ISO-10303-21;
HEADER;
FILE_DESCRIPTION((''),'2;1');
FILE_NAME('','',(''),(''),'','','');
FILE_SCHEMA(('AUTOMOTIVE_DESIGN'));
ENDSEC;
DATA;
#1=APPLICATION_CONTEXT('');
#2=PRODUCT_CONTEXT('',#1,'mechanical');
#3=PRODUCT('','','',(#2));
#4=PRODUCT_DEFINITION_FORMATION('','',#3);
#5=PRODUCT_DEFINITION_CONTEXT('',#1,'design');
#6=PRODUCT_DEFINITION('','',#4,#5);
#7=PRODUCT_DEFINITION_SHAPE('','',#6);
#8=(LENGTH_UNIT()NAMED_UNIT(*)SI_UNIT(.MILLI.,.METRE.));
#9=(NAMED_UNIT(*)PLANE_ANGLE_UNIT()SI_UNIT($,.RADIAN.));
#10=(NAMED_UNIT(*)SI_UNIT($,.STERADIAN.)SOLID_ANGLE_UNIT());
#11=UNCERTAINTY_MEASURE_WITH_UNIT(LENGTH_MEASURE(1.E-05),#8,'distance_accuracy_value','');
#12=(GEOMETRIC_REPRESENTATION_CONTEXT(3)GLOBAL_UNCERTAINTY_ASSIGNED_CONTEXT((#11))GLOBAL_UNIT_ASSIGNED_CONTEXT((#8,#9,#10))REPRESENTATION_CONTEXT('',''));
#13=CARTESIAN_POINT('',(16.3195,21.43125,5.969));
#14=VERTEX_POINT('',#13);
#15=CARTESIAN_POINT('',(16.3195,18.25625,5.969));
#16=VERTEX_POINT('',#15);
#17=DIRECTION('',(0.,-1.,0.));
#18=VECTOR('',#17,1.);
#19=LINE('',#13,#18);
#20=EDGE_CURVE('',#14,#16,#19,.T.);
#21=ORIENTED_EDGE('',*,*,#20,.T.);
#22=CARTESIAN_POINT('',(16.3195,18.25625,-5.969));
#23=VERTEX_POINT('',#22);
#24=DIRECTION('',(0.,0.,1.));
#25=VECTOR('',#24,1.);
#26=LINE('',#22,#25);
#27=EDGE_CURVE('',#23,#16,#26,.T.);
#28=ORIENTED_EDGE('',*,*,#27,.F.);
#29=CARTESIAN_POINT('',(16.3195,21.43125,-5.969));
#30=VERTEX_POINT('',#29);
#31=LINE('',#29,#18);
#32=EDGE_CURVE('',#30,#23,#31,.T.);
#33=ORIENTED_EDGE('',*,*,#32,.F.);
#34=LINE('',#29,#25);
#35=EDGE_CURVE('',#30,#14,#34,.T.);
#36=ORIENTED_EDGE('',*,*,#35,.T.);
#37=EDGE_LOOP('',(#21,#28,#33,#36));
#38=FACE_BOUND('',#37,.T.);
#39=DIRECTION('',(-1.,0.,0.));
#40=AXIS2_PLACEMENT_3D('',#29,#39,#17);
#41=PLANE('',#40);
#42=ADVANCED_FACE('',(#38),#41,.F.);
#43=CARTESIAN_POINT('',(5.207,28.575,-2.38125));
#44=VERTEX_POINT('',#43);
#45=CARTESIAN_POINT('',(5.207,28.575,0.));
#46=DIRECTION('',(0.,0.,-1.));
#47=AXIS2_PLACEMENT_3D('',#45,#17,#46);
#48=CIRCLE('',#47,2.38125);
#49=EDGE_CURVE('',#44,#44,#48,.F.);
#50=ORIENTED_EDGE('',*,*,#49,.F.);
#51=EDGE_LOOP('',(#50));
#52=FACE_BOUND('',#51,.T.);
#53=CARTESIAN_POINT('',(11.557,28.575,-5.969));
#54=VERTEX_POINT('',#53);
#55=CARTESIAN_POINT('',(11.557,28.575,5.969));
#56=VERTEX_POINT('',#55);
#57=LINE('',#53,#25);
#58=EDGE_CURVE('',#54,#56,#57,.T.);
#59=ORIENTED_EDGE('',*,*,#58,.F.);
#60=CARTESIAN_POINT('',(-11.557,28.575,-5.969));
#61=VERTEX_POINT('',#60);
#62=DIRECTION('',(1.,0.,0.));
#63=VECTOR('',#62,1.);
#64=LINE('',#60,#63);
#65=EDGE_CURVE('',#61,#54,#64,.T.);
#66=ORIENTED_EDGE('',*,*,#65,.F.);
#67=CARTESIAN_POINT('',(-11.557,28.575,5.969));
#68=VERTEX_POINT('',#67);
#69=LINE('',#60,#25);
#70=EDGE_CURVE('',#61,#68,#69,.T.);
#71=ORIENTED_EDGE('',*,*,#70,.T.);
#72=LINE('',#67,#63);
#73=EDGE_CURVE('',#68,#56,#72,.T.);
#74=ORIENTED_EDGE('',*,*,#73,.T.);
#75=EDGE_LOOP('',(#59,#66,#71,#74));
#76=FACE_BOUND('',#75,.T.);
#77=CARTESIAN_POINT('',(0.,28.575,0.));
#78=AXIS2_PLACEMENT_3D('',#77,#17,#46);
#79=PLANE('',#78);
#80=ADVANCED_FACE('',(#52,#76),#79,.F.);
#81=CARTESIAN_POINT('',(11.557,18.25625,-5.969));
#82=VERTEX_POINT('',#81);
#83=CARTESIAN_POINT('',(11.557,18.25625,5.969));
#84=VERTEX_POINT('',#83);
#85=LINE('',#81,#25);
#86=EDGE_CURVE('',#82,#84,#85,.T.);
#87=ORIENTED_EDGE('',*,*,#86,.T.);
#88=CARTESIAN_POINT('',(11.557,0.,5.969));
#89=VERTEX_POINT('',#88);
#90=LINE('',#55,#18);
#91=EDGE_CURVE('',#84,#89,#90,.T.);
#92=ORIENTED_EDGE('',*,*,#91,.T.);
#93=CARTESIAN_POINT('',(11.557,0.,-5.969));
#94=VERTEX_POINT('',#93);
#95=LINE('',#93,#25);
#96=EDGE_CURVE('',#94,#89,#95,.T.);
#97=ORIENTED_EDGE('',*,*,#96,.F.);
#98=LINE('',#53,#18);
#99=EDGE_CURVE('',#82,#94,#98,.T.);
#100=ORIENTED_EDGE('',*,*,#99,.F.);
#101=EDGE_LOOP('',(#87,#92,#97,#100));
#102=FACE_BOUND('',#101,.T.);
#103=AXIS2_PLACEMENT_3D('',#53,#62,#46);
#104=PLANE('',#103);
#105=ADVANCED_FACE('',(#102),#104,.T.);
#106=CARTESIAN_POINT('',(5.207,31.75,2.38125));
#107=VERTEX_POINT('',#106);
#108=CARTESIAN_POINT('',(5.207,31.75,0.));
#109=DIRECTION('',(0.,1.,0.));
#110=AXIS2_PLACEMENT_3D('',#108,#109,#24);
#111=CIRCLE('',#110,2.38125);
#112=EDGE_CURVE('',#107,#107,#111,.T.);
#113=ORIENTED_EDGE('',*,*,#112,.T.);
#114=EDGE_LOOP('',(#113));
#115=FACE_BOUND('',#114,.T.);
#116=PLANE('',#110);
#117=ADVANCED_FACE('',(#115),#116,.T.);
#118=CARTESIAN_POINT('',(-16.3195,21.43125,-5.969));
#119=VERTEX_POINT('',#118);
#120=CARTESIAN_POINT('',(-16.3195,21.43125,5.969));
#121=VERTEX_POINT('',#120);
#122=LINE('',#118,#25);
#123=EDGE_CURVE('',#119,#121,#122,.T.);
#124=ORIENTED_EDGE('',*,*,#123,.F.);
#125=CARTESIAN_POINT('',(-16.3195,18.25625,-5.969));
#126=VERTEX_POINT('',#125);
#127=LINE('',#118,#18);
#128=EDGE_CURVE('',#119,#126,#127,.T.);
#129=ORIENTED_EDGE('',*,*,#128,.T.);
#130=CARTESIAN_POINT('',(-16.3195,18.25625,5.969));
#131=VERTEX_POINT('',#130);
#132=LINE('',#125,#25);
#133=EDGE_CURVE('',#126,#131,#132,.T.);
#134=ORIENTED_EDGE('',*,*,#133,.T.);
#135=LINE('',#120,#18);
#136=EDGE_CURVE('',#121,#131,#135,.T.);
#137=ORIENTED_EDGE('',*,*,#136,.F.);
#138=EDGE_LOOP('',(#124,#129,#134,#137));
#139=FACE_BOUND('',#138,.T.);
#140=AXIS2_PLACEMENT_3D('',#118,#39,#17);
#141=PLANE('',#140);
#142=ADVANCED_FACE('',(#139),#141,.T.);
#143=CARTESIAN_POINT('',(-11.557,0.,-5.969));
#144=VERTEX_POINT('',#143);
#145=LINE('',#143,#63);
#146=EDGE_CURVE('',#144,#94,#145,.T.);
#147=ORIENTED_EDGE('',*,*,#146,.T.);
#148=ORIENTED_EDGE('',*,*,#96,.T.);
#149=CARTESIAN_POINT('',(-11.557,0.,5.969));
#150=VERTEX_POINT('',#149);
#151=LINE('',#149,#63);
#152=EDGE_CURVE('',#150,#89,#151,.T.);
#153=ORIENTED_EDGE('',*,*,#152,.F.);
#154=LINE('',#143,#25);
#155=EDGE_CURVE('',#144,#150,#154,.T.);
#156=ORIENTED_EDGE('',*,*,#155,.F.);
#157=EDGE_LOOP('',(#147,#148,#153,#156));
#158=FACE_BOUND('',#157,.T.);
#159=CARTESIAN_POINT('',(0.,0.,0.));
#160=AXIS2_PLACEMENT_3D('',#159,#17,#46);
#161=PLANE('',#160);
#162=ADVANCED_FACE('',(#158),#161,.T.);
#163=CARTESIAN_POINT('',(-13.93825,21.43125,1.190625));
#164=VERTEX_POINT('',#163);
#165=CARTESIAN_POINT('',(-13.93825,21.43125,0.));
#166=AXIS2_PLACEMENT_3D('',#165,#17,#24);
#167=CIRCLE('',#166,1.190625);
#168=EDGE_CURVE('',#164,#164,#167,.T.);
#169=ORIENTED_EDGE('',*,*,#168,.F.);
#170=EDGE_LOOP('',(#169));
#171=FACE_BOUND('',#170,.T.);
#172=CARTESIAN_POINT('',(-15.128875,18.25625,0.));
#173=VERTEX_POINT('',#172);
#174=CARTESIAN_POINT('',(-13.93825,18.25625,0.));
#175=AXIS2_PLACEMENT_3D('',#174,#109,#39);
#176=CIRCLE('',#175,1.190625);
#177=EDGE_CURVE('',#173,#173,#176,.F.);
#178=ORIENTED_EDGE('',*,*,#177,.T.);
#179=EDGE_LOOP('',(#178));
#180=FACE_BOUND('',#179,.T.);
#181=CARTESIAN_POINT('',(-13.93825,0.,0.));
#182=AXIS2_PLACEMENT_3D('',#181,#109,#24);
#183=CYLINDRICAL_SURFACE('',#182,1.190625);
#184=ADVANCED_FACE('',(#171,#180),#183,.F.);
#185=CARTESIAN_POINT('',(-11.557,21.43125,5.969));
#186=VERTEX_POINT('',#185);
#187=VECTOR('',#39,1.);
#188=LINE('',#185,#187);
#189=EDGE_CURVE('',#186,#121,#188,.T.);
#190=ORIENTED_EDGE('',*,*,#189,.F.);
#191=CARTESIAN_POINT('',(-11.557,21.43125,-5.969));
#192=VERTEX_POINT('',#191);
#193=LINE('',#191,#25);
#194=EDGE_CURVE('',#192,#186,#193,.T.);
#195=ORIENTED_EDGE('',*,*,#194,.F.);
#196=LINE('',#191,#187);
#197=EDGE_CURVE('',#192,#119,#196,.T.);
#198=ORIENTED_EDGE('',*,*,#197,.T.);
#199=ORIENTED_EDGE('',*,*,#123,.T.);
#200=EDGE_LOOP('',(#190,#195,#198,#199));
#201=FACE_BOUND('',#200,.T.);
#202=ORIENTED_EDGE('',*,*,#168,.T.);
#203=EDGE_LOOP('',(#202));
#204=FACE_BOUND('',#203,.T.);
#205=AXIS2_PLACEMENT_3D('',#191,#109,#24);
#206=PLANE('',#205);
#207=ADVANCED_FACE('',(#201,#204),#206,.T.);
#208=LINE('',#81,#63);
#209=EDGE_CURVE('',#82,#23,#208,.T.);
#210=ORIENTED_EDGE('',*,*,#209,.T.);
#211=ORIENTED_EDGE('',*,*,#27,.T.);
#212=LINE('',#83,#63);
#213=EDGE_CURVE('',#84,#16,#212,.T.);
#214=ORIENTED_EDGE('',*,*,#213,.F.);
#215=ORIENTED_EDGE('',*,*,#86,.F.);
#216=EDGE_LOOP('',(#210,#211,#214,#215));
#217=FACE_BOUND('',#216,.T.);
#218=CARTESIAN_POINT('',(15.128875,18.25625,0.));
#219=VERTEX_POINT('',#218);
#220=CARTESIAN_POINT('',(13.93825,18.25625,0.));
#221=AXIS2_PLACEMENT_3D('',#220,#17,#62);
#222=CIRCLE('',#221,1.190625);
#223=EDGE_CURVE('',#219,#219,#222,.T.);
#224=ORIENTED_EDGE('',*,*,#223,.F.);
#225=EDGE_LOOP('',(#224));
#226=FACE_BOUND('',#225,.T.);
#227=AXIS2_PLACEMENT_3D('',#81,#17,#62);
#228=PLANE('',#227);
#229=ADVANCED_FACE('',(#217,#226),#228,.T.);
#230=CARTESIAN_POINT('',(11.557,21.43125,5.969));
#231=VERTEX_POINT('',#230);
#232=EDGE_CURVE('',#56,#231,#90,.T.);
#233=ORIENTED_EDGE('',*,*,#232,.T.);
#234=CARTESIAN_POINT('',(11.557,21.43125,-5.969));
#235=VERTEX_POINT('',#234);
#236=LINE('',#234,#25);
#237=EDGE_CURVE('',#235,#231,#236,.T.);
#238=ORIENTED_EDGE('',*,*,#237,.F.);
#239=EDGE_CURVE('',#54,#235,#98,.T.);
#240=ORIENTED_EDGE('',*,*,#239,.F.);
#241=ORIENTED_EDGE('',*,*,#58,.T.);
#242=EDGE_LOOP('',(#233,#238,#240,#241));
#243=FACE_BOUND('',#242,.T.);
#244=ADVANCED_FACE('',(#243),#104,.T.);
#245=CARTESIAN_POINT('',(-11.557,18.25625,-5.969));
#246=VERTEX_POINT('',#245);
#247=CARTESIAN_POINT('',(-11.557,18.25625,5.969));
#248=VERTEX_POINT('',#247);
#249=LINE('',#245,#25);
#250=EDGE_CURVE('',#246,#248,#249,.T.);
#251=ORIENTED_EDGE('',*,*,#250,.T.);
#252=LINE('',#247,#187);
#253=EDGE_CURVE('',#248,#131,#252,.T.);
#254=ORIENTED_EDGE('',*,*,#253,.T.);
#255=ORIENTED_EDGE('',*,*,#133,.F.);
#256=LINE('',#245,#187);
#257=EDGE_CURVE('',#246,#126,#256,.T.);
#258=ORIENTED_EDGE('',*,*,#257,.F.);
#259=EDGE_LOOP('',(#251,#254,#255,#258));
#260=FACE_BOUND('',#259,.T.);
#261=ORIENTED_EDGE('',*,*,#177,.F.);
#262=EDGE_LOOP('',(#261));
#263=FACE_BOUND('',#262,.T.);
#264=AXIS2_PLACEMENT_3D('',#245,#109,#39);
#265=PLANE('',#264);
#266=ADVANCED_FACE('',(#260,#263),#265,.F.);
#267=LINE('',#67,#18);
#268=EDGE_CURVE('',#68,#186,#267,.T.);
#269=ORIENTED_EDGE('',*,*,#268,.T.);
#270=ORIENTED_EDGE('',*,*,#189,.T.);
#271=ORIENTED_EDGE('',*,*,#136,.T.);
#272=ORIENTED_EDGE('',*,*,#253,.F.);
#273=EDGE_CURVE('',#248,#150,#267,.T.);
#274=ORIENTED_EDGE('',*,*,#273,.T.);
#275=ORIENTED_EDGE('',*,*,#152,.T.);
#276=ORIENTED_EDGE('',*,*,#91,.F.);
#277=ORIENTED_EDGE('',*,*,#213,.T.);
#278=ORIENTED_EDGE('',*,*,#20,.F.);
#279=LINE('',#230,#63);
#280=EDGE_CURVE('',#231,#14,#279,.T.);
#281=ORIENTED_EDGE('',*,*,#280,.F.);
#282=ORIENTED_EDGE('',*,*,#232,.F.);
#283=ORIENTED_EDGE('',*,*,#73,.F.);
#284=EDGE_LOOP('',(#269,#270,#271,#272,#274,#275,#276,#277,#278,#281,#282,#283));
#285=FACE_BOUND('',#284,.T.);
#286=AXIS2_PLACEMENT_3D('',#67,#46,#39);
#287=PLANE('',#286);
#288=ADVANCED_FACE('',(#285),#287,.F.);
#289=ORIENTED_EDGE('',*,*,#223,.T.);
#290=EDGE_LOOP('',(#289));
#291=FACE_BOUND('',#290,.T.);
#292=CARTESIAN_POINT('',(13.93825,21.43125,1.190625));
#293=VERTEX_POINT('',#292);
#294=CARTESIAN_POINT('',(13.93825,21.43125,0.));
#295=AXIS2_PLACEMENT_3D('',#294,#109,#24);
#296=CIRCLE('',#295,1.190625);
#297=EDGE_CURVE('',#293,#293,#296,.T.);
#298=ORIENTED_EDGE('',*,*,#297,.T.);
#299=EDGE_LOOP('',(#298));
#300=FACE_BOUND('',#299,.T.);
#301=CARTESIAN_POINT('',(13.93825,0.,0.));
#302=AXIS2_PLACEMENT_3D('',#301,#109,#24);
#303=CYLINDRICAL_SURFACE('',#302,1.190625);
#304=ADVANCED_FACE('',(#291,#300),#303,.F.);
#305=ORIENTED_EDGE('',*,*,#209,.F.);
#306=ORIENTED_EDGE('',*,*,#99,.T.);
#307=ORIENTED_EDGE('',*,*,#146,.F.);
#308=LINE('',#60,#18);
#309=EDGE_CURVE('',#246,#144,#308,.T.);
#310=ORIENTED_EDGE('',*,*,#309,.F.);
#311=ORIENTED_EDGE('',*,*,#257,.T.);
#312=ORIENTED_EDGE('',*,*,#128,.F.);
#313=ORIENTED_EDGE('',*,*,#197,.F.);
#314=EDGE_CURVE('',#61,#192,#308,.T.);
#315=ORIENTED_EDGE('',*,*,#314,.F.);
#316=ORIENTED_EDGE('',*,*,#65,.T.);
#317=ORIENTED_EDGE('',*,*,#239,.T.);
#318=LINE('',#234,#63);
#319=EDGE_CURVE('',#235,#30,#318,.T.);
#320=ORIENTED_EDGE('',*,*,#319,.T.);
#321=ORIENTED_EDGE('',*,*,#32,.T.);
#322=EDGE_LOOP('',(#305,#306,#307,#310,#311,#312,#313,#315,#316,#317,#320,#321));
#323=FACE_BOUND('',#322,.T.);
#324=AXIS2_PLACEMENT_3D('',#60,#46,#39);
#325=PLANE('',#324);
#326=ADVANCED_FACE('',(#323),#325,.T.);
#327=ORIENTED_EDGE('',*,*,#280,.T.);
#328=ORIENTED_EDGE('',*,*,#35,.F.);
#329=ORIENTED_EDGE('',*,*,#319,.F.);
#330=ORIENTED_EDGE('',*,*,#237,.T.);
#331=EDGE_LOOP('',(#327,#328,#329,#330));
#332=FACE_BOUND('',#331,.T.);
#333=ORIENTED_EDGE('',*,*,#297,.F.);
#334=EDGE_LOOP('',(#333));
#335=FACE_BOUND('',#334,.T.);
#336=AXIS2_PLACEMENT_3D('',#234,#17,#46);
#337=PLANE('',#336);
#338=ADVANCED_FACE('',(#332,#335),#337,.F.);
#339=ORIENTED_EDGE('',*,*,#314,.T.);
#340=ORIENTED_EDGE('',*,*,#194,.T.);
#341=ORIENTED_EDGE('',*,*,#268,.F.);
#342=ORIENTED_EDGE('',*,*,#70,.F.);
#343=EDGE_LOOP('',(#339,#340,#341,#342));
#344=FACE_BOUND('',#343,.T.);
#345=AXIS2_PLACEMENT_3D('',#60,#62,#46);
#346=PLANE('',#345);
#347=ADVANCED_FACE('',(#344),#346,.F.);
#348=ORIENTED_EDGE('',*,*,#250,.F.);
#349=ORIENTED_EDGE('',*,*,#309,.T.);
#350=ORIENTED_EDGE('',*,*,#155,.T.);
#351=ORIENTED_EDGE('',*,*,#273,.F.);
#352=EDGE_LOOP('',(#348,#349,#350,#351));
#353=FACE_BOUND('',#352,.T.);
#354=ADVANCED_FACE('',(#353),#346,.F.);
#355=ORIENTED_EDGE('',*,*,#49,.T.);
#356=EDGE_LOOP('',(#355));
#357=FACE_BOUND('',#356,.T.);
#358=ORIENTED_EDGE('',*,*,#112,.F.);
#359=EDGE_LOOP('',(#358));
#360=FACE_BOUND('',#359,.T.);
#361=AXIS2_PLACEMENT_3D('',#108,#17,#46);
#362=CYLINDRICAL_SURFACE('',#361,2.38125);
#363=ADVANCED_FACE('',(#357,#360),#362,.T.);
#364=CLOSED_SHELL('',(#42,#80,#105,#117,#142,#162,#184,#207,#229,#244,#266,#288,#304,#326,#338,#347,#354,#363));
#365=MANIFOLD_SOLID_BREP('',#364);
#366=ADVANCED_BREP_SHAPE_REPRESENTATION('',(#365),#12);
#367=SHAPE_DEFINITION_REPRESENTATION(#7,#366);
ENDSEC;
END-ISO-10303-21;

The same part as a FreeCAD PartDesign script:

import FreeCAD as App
import Part
import Sketcher

V = App.Vector
Q = App.Units.Quantity

doc = App.newDocument("Part")
params = doc.addObject("Spreadsheet::Sheet", "Params")
for row, (alias, value) in enumerate([
    ("sketch1_width", "0.91 in"),
    ("sketch1_height", "0.47 in"),
    ("pad1_length", "1.125 in"),
    ("sketch2_width", "0.1875 in"),
    ("sketch2_height", "0.125 in"),
    ("pad2_length", "0.47 in"),
    ("sketch3_diameter", "0.1875 in"),
    ("pad3_length", "0.125 in"),
    ("sketch4_diameter", "0.09375 in"),
], start=1):
    params.set(f"A{row}", alias)
    params.set(f"B{row}", "=" + value)
    params.setAlias(f"B{row}", alias)

body = doc.addObject("PartDesign::Body", "Body")

sketch1 = doc.addObject("Sketcher::SketchObject", "Sketch")
body.addObject(sketch1)
sketch1.AttachmentSupport = (doc.XZ_Plane, [""])
sketch1.MapMode = "FlatFace"
sketch1.addGeometry(Part.LineSegment(V(-12, -6, 0), V(-12, 6, 0)), False)
sketch1.addGeometry(Part.LineSegment(V(-12, 6, 0), V(12, 6, 0)), False)
sketch1.addGeometry(Part.LineSegment(V(12, 6, 0), V(12, -6, 0)), False)
sketch1.addGeometry(Part.LineSegment(V(12, -6, 0), V(-12, -6, 0)), False)
sketch1.addConstraint(Sketcher.Constraint("Coincident", 0, 2, 1, 1))
sketch1.addConstraint(Sketcher.Constraint("Coincident", 1, 2, 2, 1))
sketch1.addConstraint(Sketcher.Constraint("Coincident", 2, 2, 3, 1))
sketch1.addConstraint(Sketcher.Constraint("Coincident", 3, 2, 0, 1))
sketch1.addConstraint(Sketcher.Constraint("Vertical", 0))
sketch1.addConstraint(Sketcher.Constraint("Horizontal", 1))
sketch1.addConstraint(Sketcher.Constraint("Vertical", 2))
sketch1.addConstraint(Sketcher.Constraint("Horizontal", 3))
sketch1.addConstraint(Sketcher.Constraint("Symmetric", 0, 2, 2, 2, -1, 1))
sketch1.addConstraint(Sketcher.Constraint("DistanceX", 1, 1, 1, 2, Q("0.91 in")))
sketch1.addConstraint(Sketcher.Constraint("DistanceY", 0, 1, 0, 2, Q("0.47 in")))
sketch1.setExpression("Constraints[9]", "Params.sketch1_width")
sketch1.setExpression("Constraints[10]", "Params.sketch1_height")
pad1 = doc.addObject("PartDesign::Pad", "Pad")
body.addObject(pad1)
pad1.Profile = sketch1
pad1.setExpression("Length", "Params.pad1_length")
pad1.Reversed = True

sketch2 = doc.addObject("Sketcher::SketchObject", "Sketch001")
body.addObject(sketch2)
sketch2.AttachmentSupport = (doc.XY_Plane, [""])
sketch2.MapMode = "FlatFace"
sketch2.AttachmentOffset = App.Placement(V(0, 0, 0.235 * 25.4), App.Rotation())
sketch2.addGeometry(Part.LineSegment(V(11.6, 21.4, 0), V(11.6, 18.3, 0)), False)
sketch2.addGeometry(Part.LineSegment(V(11.6, 18.3, 0), V(16.3, 18.3, 0)), False)
sketch2.addGeometry(Part.LineSegment(V(16.3, 18.3, 0), V(16.3, 21.4, 0)), False)
sketch2.addGeometry(Part.LineSegment(V(16.3, 21.4, 0), V(11.6, 21.4, 0)), False)
sketch2.addConstraint(Sketcher.Constraint("Coincident", 0, 2, 1, 1))
sketch2.addConstraint(Sketcher.Constraint("Coincident", 1, 2, 2, 1))
sketch2.addConstraint(Sketcher.Constraint("Coincident", 2, 2, 3, 1))
sketch2.addConstraint(Sketcher.Constraint("Coincident", 3, 2, 0, 1))
sketch2.addConstraint(Sketcher.Constraint("Vertical", 0))
sketch2.addConstraint(Sketcher.Constraint("Horizontal", 1))
sketch2.addConstraint(Sketcher.Constraint("Vertical", 2))
sketch2.addConstraint(Sketcher.Constraint("Horizontal", 3))
sketch2.addConstraint(Sketcher.Constraint("DistanceX", 1, 1, 1, 2, Q("0.1875 in")))
sketch2.addConstraint(Sketcher.Constraint("DistanceY", 0, 2, 0, 1, Q("0.125 in")))
sketch2.addConstraint(Sketcher.Constraint("DistanceX", -1, 1, 0, 2, Q("0.455 in")))
sketch2.addConstraint(Sketcher.Constraint("DistanceY", -1, 1, 0, 2, Q("0.71875 in")))
sketch2.setExpression("Constraints[8]", "Params.sketch2_width")
sketch2.setExpression("Constraints[9]", "Params.sketch2_height")
pad2 = doc.addObject("PartDesign::Pad", "Pad001")
body.addObject(pad2)
pad2.Profile = sketch2
pad2.setExpression("Length", "Params.pad2_length")
pad2.Reversed = True
doc.recompute()

mirrored = doc.addObject("PartDesign::Mirrored", "Mirrored")
body.addObject(mirrored)
mirrored.Originals = [pad2]
mirrored.MirrorPlane = (doc.YZ_Plane, [""])
body.Tip = mirrored

sketch3 = doc.addObject("Sketcher::SketchObject", "Sketch002")
body.addObject(sketch3)
sketch3.AttachmentSupport = (doc.XZ_Plane, [""])
sketch3.MapMode = "FlatFace"
sketch3.AttachmentOffset = App.Placement(V(0, 0, -1.125 * 25.4), App.Rotation())
sketch3.addGeometry(Part.Circle(V(5.2, 0, 0), V(0, 0, 1), 2.4), False)
sketch3.addConstraint(Sketcher.Constraint("PointOnObject", 0, 3, -1))
sketch3.addConstraint(Sketcher.Constraint("Diameter", 0, Q("0.1875 in")))
sketch3.addConstraint(Sketcher.Constraint("DistanceX", -1, 1, 0, 3, Q("0.205 in")))
sketch3.setExpression("Constraints[1]", "Params.sketch3_diameter")
pad3 = doc.addObject("PartDesign::Pad", "Pad002")
body.addObject(pad3)
pad3.Profile = sketch3
pad3.setExpression("Length", "Params.pad3_length")
pad3.Reversed = True

sketch4 = doc.addObject("Sketcher::SketchObject", "Sketch003")
body.addObject(sketch4)
sketch4.AttachmentSupport = (doc.XZ_Plane, [""])
sketch4.MapMode = "FlatFace"
sketch4.AttachmentOffset = App.Placement(V(0, 0, -0.84375 * 25.4), App.Rotation())
sketch4.addGeometry(Part.Circle(V(13.9, 0, 0), V(0, 0, 1), 1.2), False)
sketch4.addConstraint(Sketcher.Constraint("PointOnObject", 0, 3, -1))
sketch4.addConstraint(Sketcher.Constraint("Diameter", 0, Q("0.09375 in")))
sketch4.addConstraint(Sketcher.Constraint("DistanceX", -1, 1, 0, 3, Q("13.93825 mm")))
sketch4.setExpression("Constraints[1]", "Params.sketch4_diameter")
pocket1 = doc.addObject("PartDesign::Pocket", "Pocket")
body.addObject(pocket1)
pocket1.Profile = sketch4
pocket1.Type = "ThroughAll"
pocket1.Reversed = True
doc.recompute()

mirrored2 = doc.addObject("PartDesign::Mirrored", "Mirrored001")
body.addObject(mirrored2)
mirrored2.Originals = [pocket1]
mirrored2.MirrorPlane = (doc.YZ_Plane, [""])
body.Tip = mirrored2

doc.recompute()
